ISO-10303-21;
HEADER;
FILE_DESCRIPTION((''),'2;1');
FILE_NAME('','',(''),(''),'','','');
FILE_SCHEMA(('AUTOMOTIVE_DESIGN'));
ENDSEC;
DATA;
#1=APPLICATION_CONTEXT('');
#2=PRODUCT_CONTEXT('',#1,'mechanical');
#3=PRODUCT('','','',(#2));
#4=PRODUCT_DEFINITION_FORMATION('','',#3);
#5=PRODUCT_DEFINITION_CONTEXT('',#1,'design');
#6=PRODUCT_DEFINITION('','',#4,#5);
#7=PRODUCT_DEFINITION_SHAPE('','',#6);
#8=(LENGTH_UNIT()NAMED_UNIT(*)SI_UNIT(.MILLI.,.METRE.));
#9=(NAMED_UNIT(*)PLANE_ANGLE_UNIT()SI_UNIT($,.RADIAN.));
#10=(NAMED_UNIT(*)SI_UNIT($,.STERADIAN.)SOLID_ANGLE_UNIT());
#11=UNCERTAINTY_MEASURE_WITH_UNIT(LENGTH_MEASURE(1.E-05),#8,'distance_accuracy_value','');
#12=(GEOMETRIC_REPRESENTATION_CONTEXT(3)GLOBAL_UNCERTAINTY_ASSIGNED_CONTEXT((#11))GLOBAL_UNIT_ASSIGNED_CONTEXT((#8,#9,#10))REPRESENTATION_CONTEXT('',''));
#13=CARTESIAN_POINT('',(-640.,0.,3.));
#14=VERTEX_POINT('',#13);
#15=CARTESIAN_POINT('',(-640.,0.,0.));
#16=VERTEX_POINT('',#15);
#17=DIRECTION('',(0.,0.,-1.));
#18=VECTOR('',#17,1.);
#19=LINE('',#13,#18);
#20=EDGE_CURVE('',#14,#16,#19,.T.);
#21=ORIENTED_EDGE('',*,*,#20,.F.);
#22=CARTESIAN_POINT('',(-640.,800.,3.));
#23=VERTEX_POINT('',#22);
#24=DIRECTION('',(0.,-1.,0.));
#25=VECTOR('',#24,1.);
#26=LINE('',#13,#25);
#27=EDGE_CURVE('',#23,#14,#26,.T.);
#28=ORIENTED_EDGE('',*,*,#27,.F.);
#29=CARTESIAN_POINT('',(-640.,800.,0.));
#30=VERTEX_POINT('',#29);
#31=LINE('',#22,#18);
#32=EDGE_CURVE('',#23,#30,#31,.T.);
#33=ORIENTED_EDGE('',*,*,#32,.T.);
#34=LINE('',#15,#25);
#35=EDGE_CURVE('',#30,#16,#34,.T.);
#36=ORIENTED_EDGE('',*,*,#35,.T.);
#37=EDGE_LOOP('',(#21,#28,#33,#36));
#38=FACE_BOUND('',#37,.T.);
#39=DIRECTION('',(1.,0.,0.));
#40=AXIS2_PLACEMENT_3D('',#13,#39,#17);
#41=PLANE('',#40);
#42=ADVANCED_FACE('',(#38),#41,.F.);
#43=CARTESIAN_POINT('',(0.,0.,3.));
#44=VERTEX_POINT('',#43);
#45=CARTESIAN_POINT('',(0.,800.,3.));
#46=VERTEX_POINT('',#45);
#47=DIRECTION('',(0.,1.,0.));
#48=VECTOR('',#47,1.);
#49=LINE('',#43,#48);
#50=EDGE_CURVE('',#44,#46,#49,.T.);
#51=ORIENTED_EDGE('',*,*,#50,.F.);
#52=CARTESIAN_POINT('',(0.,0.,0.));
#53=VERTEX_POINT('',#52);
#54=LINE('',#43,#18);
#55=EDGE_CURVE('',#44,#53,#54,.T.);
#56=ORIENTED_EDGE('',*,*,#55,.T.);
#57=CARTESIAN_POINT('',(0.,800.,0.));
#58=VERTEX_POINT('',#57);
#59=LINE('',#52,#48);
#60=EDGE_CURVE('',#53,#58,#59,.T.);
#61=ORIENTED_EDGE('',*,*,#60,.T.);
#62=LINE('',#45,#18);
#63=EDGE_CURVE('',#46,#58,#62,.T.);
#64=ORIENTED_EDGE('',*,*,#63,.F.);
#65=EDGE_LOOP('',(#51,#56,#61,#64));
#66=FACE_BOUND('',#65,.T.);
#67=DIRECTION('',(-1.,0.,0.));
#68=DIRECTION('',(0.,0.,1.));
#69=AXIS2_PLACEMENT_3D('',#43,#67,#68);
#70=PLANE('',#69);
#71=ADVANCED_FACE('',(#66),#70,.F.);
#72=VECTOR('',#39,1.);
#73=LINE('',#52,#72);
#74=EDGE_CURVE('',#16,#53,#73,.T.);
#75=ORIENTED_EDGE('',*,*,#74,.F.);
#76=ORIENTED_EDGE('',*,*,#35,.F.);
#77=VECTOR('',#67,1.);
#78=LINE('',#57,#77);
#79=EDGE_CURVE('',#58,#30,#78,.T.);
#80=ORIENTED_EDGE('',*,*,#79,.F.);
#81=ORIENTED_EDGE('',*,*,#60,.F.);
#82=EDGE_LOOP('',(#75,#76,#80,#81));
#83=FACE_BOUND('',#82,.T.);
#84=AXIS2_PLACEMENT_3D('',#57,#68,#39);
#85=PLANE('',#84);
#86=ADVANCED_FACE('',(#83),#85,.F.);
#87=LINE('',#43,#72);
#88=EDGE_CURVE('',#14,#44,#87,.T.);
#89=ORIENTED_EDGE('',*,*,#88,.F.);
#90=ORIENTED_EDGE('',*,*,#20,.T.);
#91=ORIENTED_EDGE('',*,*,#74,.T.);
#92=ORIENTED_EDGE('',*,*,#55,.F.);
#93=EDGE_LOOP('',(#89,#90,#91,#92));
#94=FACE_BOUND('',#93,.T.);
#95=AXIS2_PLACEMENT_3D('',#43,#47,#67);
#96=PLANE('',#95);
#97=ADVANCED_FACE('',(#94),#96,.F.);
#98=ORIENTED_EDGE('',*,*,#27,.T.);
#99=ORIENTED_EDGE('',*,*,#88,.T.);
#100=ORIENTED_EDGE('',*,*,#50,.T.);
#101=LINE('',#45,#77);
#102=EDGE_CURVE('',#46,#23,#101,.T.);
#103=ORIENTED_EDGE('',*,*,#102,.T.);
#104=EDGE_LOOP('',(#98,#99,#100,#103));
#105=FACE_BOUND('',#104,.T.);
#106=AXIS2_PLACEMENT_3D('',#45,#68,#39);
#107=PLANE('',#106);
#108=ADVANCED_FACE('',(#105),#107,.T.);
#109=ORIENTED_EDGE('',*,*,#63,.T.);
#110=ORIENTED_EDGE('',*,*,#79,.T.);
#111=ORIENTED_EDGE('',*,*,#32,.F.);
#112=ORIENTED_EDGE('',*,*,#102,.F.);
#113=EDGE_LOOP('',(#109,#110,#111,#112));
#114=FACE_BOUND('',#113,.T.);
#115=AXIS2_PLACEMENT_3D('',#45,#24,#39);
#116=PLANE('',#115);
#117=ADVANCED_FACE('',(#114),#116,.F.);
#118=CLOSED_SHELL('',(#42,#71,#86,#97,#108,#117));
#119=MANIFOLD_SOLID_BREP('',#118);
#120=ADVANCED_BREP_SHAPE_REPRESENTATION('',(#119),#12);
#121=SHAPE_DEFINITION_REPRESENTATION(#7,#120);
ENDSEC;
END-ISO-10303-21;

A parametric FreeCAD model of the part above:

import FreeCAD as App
import Part
import Sketcher
from FreeCAD import Vector

doc = App.newDocument("Part")
body = doc.addObject("PartDesign::Body", "Body")

# Sketch on XY plane
sketch1 = doc.addObject("Sketcher::SketchObject", "Sketch")
body.addObject(sketch1)
sketch1.AttachmentSupport = (doc.XY_Plane, [""])
sketch1.MapMode = "FlatFace"
sketch1.addGeometry([
    Part.LineSegment(Vector(-640, 800, 0), Vector(-640, 0, 0)),
    Part.LineSegment(Vector(-640, 0, 0), Vector(0, 0, 0)),
    Part.LineSegment(Vector(0, 0, 0), Vector(0, 800, 0)),
    Part.LineSegment(Vector(0, 800, 0), Vector(-640, 800, 0)),
], False)
sketch1.addConstraint([
    Sketcher.Constraint("Coincident", 0, 2, 1, 1),
    Sketcher.Constraint("Coincident", 1, 2, 2, 1),
    Sketcher.Constraint("Coincident", 2, 2, 3, 1),
    Sketcher.Constraint("Coincident", 3, 2, 0, 1),
    Sketcher.Constraint("Vertical", 0),
    Sketcher.Constraint("Horizontal", 1),
    Sketcher.Constraint("Vertical", 2),
    Sketcher.Constraint("Horizontal", 3),
    Sketcher.Constraint("Coincident", 1, 2, -1, 1),
    Sketcher.Constraint("DistanceX", 1, 1, 1, 2, 640.0),
    Sketcher.Constraint("DistanceY", 0, 2, 0, 1, 800.0),
])
pad1 = doc.addObject("PartDesign::Pad", "Pad")
body.addObject(pad1)
pad1.Profile = sketch1
pad1.Length = 3

doc.recompute()
